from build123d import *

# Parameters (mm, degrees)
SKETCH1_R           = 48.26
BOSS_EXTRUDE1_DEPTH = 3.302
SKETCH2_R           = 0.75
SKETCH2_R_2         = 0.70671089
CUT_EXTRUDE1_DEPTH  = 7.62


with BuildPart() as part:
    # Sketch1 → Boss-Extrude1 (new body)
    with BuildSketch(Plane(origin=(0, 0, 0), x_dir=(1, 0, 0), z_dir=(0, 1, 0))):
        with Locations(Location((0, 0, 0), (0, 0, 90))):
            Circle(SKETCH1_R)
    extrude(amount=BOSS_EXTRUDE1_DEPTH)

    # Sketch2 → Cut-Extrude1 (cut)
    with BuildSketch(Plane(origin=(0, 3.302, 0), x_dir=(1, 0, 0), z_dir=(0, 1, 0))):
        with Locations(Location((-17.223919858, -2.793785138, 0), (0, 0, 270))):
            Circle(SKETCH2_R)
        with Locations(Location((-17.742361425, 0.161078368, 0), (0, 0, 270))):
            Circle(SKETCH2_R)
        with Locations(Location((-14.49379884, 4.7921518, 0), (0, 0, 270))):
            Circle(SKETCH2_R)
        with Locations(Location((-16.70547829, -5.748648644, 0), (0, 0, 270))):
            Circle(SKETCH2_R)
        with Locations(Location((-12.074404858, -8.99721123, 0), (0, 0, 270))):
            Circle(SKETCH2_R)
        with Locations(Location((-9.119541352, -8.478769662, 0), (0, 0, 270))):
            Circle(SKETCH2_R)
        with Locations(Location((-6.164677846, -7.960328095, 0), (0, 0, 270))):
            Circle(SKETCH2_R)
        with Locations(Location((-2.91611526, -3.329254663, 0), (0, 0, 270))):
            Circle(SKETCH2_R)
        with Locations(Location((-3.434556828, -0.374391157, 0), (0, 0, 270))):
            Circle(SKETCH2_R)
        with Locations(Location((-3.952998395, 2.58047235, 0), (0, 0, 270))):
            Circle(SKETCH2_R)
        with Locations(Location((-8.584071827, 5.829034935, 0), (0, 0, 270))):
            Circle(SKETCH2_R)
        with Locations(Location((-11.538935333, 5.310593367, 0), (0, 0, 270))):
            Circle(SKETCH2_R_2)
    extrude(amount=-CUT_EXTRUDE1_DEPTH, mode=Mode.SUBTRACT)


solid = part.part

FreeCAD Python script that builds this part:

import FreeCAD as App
import Part
import Sketcher

V = App.Vector
Q = App.Units.Quantity

doc = App.newDocument("Part")
body = doc.addObject("PartDesign::Body", "Body")

sketch1 = body.newObject("Sketcher::SketchObject", "Sketch")
sketch1.AttachmentSupport = (doc.getObject("XZ_Plane"), [""])
sketch1.MapMode = "FlatFace"
sketch1.addGeometry(Part.Circle(V(0, 0, 0), V(0, 0, 1), 48), False)
sketch1.addConstraint([
    Sketcher.Constraint("Coincident", 0, 3, -1, 1),
    Sketcher.Constraint("Diameter", 0, Q("3.8 in")),
])
pad1 = body.newObject("PartDesign::Pad", "Pad")
pad1.Profile = sketch1
pad1.Length = Q("0.13 in")
pad1.Reversed = True

sketch2 = body.newObject("Sketcher::SketchObject", "Sketch001")
sketch2.AttachmentSupport = (doc.getObject("XZ_Plane"), [""])
sketch2.MapMode = "FlatFace"
sketch2.AttachmentOffset = App.Placement(V(0, 0, -0.13 * 25.4), App.Rotation())
sketch2.addGeometry([
    Part.Circle(V(-17.2, 2.8, 0), V(0, 0, 1), 0.8),
    Part.Circle(V(-17.7, -0.2, 0), V(0, 0, 1), 0.8),
    Part.Circle(V(-14.5, -4.8, 0), V(0, 0, 1), 0.8),
    Part.Circle(V(-16.7, 5.7, 0), V(0, 0, 1), 0.8),
    Part.Circle(V(-12.1, 9, 0), V(0, 0, 1), 0.8),
    Part.Circle(V(-9.1, 8.5, 0), V(0, 0, 1), 0.8),
    Part.Circle(V(-6.2, 8, 0), V(0, 0, 1), 0.8),
    Part.Circle(V(-2.9, 3.3, 0), V(0, 0, 1), 0.8),
    Part.Circle(V(-3.4, 0.4, 0), V(0, 0, 1), 0.8),
    Part.Circle(V(-4, -2.6, 0), V(0, 0, 1), 0.8),
    Part.Circle(V(-8.6, -5.8, 0), V(0, 0, 1), 0.8),
    Part.Circle(V(-11.5, -5.3, 0), V(0, 0, 1), 0.7),
], False)
sketch2.addConstraint([
    Sketcher.Constraint("Equal", 0, 1),
    Sketcher.Constraint("Equal", 1, 2),
    Sketcher.Constraint("Equal", 2, 3),
    Sketcher.Constraint("Equal", 3, 4),
    Sketcher.Constraint("Equal", 4, 5),
    Sketcher.Constraint("Equal", 5, 6),
    Sketcher.Constraint("Equal", 6, 7),
    Sketcher.Constraint("Equal", 7, 8),
    Sketcher.Constraint("Equal", 8, 9),
    Sketcher.Constraint("Equal", 9, 10),
    Sketcher.Constraint("Diameter", 0, Q("1.5 mm")),
    Sketcher.Constraint("Diameter", 11, Q("1.413422 mm")),
    Sketcher.Constraint("DistanceX", 2, 3, -1, 1, Q("14.493799 mm")),
    Sketcher.Constraint("DistanceX", 9, 3, -1, 1, Q("3.952998 mm")),
    Sketcher.Constraint("DistanceY", 2, 3, 3, 3, Q("10.5408 mm")),
    Sketcher.Constraint("DistanceX", 3, 3, 6, 3, Q("10.5408 mm")),
    Sketcher.Constraint("DistanceY", 9, 3, 6, 3, Q("10.5408 mm")),
    Sketcher.Constraint("DistanceX", 0, 3, -1, 1, Q("17.22392 mm")),
    Sketcher.Constraint("DistanceX", 1, 3, -1, 1, Q("17.742361 mm")),
    Sketcher.Constraint("DistanceY", 1, 3, -1, 1, Q("0.161078 mm")),
    Sketcher.Constraint("DistanceY", 2, 3, -1, 1, Q("4.792152 mm")),
    Sketcher.Constraint("DistanceX", 3, 3, -1, 1, Q("16.705478 mm")),
    Sketcher.Constraint("DistanceY", -1, 1, 4, 3, Q("8.997211 mm")),
    Sketcher.Constraint("DistanceX", 5, 3, -1, 1, Q("9.119541 mm")),
    Sketcher.Constraint("DistanceY", -1, 1, 5, 3, Q("8.47877 mm")),
    Sketcher.Constraint("DistanceY", -1, 1, 6, 3, Q("7.960328 mm")),
    Sketcher.Constraint("DistanceY", -1, 1, 8, 3, Q("0.374391 mm")),
    Sketcher.Constraint("DistanceX", 10, 3, -1, 1, Q("8.584072 mm")),
    Sketcher.Constraint("DistanceX", 4, 3, 7, 3, Q("9.15829 mm")),
    Sketcher.Constraint("DistanceX", 8, 3, 7, 3, Q("0.518442 mm")),
    Sketcher.Constraint("DistanceX", 6, 3, 8, 3, Q("2.730121 mm")),
    Sketcher.Constraint("DistanceY", 10, 3, 7, 3, Q("9.15829 mm")),
    Sketcher.Constraint("DistanceY", 10, 3, 11, 3, Q("0.518442 mm")),
    Sketcher.Constraint("DistanceY", 11, 3, 2, 3, Q("0.518442 mm")),
    Sketcher.Constraint("DistanceX", 11, 3, 8, 3, Q("8.104379 mm")),
    Sketcher.Constraint("DistanceY", -1, 1, 0, 3, Q("2.793785 mm")),
])
pocket1 = body.newObject("PartDesign::Pocket", "Pocket")
pocket1.Profile = sketch2
pocket1.Length = Q("0.3 in")
pocket1.Reversed = True

doc.recompute()
